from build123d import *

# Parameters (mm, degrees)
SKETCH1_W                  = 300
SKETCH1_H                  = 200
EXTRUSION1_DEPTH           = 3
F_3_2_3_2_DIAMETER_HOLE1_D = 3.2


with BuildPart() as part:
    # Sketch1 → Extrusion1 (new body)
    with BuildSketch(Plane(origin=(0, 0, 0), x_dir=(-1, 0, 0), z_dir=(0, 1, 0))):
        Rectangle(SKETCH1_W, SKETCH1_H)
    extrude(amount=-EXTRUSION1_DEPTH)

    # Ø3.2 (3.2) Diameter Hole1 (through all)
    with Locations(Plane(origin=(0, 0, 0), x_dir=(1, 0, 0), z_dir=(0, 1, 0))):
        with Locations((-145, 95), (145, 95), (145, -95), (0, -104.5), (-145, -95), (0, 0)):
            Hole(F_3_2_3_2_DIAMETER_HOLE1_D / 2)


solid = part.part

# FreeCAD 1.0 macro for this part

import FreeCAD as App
import Part
import Sketcher

V = App.Vector
Q = App.Units.Quantity


def add_polygon(sketch, points):
    """Adds a closed chain of lines whose ends are joined by coincident constraints."""
    first, n = sketch.GeometryCount, len(points)
    for a, b in zip(points, points[1:] + points[:1]):
        sketch.addGeometry(Part.LineSegment(App.Vector(*a, 0), App.Vector(*b, 0)), False)
    for i in range(n):
        sketch.addConstraint(Sketcher.Constraint("Coincident", first + i, 2, first + (i + 1) % n, 1))

doc = App.newDocument("Part")
body = doc.addObject("PartDesign::Body", "Body")

sketch1 = doc.addObject("Sketcher::SketchObject", "Sketch")
body.addObject(sketch1)
sketch1.AttachmentSupport = (doc.XZ_Plane, [""])
sketch1.MapMode = "FlatFace"
add_polygon(sketch1, [(150, 100), (150, -100), (-150, -100), (-150, 100)])
sketch1.addConstraint([
    Sketcher.Constraint("Vertical", 0),
    Sketcher.Constraint("Horizontal", 1),
    Sketcher.Constraint("Vertical", 2),
    Sketcher.Constraint("Horizontal", 3),
    Sketcher.Constraint("Symmetric", 0, 2, 2, 2, -1, 1),
    Sketcher.Constraint("DistanceX", 1, 2, 1, 1, Q("300 mm")),
    Sketcher.Constraint("DistanceY", 0, 2, 0, 1, Q("200 mm")),
])
pad1 = doc.addObject("PartDesign::Pad", "Pad")
body.addObject(pad1)
pad1.Profile = sketch1
pad1.Length = 3

sketch2 = doc.addObject("Sketcher::SketchObject", "Sketch001")
body.addObject(sketch2)
sketch2.AttachmentSupport = (doc.XZ_Plane, [""])
sketch2.MapMode = "FlatFace"
sketch2.addGeometry([
    Part.Circle(V(-145, -95, 0), V(0, 0, 1), 1.6),
    Part.Circle(V(145, -95, 0), V(0, 0, 1), 1.6),
    Part.Circle(V(145, 95, 0), V(0, 0, 1), 1.6),
    Part.Circle(V(0, 104.5, 0), V(0, 0, 1), 1.6),
    Part.Circle(V(-145, 95, 0), V(0, 0, 1), 1.6),
    Part.Circle(V(0, 0, 0), V(0, 0, 1), 1.6),
], False)
sketch2.addConstraint([
    Sketcher.Constraint("Coincident", 5, 3, -1, 1),
    Sketcher.Constraint("Equal", 0, 1),
    Sketcher.Constraint("Equal", 1, 2),
    Sketcher.Constraint("Equal", 2, 3),
    Sketcher.Constraint("Equal", 3, 4),
    Sketcher.Constraint("Equal", 4, 5),
    Sketcher.Constraint("Symmetric", 0, 3, 2, 3, -1, 1),
    Sketcher.Constraint("Symmetric", 1, 3, 4, 3, -1, 1),
    Sketcher.Constraint("Symmetric", 0, 3, 1, 3, -2),
    Sketcher.Constraint("PointOnObject", 3, 3, -2),
    Sketcher.Constraint("Diameter", 0, Q("3.2 mm")),
    Sketcher.Constraint("DistanceX", 0, 3, -1, 1, Q("145 mm")),
    Sketcher.Constraint("DistanceY", 0, 3, -1, 1, Q("95 mm")),
    Sketcher.Constraint("DistanceY", -1, 1, 3, 3, Q("104.5 mm")),
])
doc.recompute()
hole = doc.addObject("PartDesign::Hole", "Hole")
body.addObject(hole)
hole.Profile = sketch2
hole.ThreadType = "None"
hole.Diameter = 3.2
hole.DepthType = "ThroughAll"
hole.Reversed = True

doc.recompute()
